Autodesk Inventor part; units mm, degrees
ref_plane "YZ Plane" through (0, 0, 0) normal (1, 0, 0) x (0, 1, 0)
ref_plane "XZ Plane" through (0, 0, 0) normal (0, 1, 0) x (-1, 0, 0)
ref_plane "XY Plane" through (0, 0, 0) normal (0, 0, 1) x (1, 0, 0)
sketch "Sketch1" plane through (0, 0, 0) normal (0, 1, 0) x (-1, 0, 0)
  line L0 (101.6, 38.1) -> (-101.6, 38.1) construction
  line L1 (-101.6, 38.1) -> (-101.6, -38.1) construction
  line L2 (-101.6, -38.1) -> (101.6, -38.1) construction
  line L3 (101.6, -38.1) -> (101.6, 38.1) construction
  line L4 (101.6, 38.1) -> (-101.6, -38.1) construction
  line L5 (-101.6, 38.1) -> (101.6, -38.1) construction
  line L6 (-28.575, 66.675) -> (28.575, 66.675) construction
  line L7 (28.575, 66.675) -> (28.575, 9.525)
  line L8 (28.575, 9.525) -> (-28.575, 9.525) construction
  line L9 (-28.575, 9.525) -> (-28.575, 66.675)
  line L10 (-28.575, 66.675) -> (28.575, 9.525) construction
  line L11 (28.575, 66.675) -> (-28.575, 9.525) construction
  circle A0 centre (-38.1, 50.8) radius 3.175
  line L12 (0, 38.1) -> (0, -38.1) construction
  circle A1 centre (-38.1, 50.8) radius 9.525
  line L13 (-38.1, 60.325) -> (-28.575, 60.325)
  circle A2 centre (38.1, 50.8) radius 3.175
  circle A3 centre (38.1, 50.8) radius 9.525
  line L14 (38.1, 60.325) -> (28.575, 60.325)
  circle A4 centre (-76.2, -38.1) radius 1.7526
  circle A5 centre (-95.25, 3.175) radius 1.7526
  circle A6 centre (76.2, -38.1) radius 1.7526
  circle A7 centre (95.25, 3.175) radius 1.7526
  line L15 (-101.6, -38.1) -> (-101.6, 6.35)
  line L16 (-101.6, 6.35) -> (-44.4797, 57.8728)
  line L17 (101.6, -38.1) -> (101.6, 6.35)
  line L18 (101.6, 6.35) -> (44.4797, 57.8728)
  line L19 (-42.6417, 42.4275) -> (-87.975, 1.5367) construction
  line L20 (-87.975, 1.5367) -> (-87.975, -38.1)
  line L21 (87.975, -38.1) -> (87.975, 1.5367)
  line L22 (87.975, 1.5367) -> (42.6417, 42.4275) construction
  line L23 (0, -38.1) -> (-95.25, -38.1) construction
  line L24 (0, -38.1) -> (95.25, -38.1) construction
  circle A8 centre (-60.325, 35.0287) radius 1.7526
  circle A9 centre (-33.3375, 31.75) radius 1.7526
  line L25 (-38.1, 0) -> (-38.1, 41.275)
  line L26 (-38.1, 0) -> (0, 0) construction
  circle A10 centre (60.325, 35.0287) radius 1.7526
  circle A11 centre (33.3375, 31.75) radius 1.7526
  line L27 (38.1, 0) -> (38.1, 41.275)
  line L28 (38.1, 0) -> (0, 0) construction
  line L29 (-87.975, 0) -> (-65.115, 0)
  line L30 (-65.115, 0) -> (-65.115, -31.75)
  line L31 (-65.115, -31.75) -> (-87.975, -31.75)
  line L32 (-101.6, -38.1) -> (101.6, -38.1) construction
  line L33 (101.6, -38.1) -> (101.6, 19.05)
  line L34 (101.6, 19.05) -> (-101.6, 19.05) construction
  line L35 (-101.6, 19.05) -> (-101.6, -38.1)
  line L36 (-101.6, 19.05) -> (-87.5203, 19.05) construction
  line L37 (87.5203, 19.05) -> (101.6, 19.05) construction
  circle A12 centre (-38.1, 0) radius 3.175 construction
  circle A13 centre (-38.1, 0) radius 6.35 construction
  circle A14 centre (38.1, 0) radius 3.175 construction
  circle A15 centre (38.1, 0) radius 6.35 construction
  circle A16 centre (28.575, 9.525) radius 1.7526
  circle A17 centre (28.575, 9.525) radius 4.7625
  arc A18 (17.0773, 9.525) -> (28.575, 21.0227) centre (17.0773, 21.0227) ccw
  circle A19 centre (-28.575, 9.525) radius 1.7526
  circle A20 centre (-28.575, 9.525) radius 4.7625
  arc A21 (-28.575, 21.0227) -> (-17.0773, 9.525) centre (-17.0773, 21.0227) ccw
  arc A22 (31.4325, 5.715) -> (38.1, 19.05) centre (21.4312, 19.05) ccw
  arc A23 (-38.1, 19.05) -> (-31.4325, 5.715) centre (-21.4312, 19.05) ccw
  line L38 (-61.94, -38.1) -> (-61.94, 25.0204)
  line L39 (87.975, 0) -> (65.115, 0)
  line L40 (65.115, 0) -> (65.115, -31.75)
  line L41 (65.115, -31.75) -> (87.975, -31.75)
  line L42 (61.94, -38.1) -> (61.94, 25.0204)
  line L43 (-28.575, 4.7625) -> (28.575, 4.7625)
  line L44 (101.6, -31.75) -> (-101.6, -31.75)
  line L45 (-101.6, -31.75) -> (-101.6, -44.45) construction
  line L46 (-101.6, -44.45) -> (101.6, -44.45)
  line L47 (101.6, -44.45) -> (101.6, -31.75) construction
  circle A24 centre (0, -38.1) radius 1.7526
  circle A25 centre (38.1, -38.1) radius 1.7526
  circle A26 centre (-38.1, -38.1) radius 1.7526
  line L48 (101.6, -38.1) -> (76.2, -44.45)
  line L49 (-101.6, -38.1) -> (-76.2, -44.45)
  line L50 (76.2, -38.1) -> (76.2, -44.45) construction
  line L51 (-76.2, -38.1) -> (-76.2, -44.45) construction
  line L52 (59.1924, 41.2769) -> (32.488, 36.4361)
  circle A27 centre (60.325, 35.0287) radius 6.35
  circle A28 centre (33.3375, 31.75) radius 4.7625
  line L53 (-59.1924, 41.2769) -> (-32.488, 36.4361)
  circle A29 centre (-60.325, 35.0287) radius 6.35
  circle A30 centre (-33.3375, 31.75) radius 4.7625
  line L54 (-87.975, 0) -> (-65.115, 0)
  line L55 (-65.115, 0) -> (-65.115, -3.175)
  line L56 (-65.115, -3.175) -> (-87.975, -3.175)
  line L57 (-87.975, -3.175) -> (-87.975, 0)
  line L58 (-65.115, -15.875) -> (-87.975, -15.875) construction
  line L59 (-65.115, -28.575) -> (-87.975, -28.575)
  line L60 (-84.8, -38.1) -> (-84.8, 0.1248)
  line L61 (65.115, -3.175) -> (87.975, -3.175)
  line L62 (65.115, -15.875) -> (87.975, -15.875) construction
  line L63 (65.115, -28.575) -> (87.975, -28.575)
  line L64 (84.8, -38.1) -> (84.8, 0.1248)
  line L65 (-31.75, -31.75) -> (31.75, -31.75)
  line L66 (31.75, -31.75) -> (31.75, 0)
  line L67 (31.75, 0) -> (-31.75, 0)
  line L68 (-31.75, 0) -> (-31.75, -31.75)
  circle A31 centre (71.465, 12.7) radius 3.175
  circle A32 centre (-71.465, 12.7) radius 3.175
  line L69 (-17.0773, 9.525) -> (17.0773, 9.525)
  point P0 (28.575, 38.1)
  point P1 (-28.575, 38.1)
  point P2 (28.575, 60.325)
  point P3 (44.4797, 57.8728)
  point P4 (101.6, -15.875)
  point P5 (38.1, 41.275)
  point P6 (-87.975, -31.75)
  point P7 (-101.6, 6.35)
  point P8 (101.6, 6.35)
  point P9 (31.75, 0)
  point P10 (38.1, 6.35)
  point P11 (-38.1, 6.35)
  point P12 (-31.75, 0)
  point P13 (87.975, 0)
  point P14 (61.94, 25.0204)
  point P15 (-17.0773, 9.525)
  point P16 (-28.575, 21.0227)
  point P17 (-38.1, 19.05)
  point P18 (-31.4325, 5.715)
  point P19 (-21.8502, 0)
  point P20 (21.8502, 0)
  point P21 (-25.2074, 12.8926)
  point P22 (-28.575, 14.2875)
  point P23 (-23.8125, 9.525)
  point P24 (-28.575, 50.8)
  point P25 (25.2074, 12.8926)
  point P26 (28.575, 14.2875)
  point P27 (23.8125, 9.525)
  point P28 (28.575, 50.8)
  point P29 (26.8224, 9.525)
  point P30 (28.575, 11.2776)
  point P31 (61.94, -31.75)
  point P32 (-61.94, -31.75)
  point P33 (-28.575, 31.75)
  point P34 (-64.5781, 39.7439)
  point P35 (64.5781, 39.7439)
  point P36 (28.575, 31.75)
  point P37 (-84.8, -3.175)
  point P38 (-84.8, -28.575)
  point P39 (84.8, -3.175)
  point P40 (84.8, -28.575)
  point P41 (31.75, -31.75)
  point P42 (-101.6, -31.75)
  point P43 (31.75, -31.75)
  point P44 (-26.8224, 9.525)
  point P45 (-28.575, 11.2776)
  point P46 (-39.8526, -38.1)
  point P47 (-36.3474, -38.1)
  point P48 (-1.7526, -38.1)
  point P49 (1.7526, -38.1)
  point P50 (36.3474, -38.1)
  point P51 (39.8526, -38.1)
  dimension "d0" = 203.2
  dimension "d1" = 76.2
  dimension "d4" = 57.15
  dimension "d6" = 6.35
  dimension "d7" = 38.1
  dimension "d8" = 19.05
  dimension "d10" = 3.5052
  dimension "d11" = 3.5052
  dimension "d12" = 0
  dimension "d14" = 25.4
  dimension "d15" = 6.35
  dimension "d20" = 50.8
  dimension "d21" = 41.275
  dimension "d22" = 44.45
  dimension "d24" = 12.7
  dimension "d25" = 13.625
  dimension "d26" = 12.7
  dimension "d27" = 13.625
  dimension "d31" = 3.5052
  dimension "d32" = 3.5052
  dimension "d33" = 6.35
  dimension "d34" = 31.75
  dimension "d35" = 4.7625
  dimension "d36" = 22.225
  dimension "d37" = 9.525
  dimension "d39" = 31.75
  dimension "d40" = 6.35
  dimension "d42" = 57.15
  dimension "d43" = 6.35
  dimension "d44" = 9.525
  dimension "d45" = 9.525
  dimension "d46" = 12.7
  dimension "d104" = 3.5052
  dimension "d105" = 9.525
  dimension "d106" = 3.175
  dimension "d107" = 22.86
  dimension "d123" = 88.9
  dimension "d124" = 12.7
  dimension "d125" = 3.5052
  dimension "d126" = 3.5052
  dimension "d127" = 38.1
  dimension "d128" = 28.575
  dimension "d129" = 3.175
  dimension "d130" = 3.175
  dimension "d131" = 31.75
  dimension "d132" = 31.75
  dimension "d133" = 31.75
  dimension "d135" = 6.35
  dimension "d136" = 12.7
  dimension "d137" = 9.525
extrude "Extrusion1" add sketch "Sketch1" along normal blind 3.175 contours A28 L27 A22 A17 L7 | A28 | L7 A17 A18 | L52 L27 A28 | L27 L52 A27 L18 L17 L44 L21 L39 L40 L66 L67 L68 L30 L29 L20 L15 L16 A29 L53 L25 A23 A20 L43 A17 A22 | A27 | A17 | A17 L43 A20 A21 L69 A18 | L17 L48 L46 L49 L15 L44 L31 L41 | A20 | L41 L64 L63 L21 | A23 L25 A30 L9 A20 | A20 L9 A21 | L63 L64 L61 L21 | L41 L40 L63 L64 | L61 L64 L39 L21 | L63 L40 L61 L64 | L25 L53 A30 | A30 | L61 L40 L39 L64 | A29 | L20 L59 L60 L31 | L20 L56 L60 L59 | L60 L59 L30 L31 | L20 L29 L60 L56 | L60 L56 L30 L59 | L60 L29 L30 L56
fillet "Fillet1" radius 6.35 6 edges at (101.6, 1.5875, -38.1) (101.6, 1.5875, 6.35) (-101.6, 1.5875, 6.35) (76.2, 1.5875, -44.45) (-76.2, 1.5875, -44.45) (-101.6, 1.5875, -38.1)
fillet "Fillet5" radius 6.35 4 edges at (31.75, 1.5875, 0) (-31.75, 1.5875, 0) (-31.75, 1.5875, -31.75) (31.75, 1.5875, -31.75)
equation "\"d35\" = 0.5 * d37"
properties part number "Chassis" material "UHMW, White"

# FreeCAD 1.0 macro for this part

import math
import FreeCAD as App
import Part
import Sketcher
from FreeCAD import Vector
Q = App.Units.Quantity


def edges_at(feature, points):
    """Names of the edges that pass closest to the given points."""
    edges = feature.Shape.Edges
    near = lambda p: min(range(len(edges)), key=lambda i: edges[i].distToShape(Part.Vertex(*p))[0])
    return sorted({f"Edge{near(p) + 1}" for p in points})


def add_polygon(sketch, points):
    """Adds a closed chain of lines whose ends are joined by coincident constraints."""
    first, n = sketch.GeometryCount, len(points)
    for a, b in zip(points, points[1:] + points[:1]):
        sketch.addGeometry(Part.LineSegment(App.Vector(*a, 0), App.Vector(*b, 0)), False)
    for i in range(n):
        sketch.addConstraint(Sketcher.Constraint("Coincident", first + i, 2, first + (i + 1) % n, 1))

doc = App.newDocument("Part")
body = doc.addObject("PartDesign::Body", "Body")

# Sketch on XZ plane
sketch1 = doc.addObject("Sketcher::SketchObject", "Sketch")
body.addObject(sketch1)
sketch1.AttachmentSupport = (doc.XZ_Plane, [""])
sketch1.MapMode = "FlatFace"
sketch1.addGeometry(Part.LineSegment(Vector(-28.6, 31.8, 0), Vector(-28.6, 21, 0)), False)  # 0
sketch1.addGeometry(Part.ArcOfCircle(Part.Circle(Vector(-17.1, 21, 0), Vector(0, 0, 1), 11.5), math.radians(180), math.radians(270)), False)  # 1
sketch1.addGeometry(Part.LineSegment(Vector(-17.1, 9.5, 0), Vector(17.1, 9.5, 0)), False)  # 2
sketch1.addGeometry(Part.ArcOfCircle(Part.Circle(Vector(17.1, 21, 0), Vector(0, 0, 1), 11.5), math.radians(-90), math.radians(0)), False)  # 3
sketch1.addGeometry(Part.LineSegment(Vector(28.6, 21, 0), Vector(28.6, 31.8, 0)), False)  # 4
sketch1.addGeometry(Part.ArcOfCircle(Part.Circle(Vector(33.3, 31.8, 0), Vector(0, 0, 1), 4.8), math.radians(100), math.radians(180)), False)  # 5
sketch1.addGeometry(Part.LineSegment(Vector(32.5, 36.4, 0), Vector(59.2, 41.3, 0)), False)  # 6
sketch1.addGeometry(Part.ArcOfCircle(Part.Circle(Vector(60.3, 35, 0), Vector(0, 0, 1), 6.3), math.radians(48), math.radians(100)), False)  # 7
sketch1.addGeometry(Part.LineSegment(Vector(64.6, 39.7, 0), Vector(101.6, 6.3, 0)), False)  # 8
sketch1.addGeometry(Part.LineSegment(Vector(101.6, 6.3, 0), Vector(101.6, -38.1, 0)), False)  # 9
sketch1.addGeometry(Part.LineSegment(Vector(101.6, -38.1, 0), Vector(76.2, -44.5, 0)), False)  # 10
sketch1.addGeometry(Part.LineSegment(Vector(76.2, -44.5, 0), Vector(-76.2, -44.5, 0)), False)  # 11
sketch1.addGeometry(Part.LineSegment(Vector(-76.2, -44.5, 0), Vector(-101.6, -38.1, 0)), False)  # 12
sketch1.addGeometry(Part.LineSegment(Vector(-101.6, -38.1, 0), Vector(-101.6, 6.3, 0)), False)  # 13
sketch1.addGeometry(Part.LineSegment(Vector(-101.6, 6.3, 0), Vector(-64.6, 39.7, 0)), False)  # 14
sketch1.addGeometry(Part.ArcOfCircle(Part.Circle(Vector(-60.3, 35, 0), Vector(0, 0, 1), 6.3), math.radians(80), math.radians(132)), False)  # 15
sketch1.addGeometry(Part.LineSegment(Vector(-59.2, 41.3, 0), Vector(-32.5, 36.4, 0)), False)  # 16
sketch1.addGeometry(Part.ArcOfCircle(Part.Circle(Vector(-33.3, 31.8, 0), Vector(0, 0, 1), 4.8), math.radians(0), math.radians(80)), False)  # 17
sketch1.addGeometry(Part.Circle(Vector(-33.3, 31.8, 0), Vector(0, 0, 1), 1.8), False)  # 18
add_polygon(sketch1, [(-31.8, 0), (-31.8, -31.8), (31.8, -31.8), (31.8, 0)])  # lines 19-22
sketch1.addGeometry(Part.Circle(Vector(71.5, 12.7, 0), Vector(0, 0, 1), 3.2), False)  # 23
sketch1.addGeometry(Part.Circle(Vector(-71.5, 12.7, 0), Vector(0, 0, 1), 3.2), False)  # 24
sketch1.addGeometry(Part.Circle(Vector(95.2, 3.2, 0), Vector(0, 0, 1), 1.8), False)  # 25
sketch1.addGeometry(Part.Circle(Vector(-95.2, 3.2, 0), Vector(0, 0, 1), 1.8), False)  # 26
sketch1.addGeometry(Part.Circle(Vector(-28.6, 9.5, 0), Vector(0, 0, 1), 1.8), False)  # 27
sketch1.addGeometry(Part.Circle(Vector(-60.3, 35, 0), Vector(0, 0, 1), 1.8), False)  # 28
sketch1.addGeometry(Part.Circle(Vector(-76.2, -38.1, 0), Vector(0, 0, 1), 1.8), False)  # 29
sketch1.addGeometry(Part.Circle(Vector(76.2, -38.1, 0), Vector(0, 0, 1), 1.8), False)  # 30
sketch1.addGeometry(Part.Circle(Vector(38.1, -38.1, 0), Vector(0, 0, 1), 1.8), False)  # 31
sketch1.addGeometry(Part.Circle(Vector(0, -38.1, 0), Vector(0, 0, 1), 1.8), False)  # 32
sketch1.addGeometry(Part.Circle(Vector(-38.1, -38.1, 0), Vector(0, 0, 1), 1.8), False)  # 33
sketch1.addGeometry(Part.Circle(Vector(60.3, 35, 0), Vector(0, 0, 1), 1.8), False)  # 34
sketch1.addGeometry(Part.Circle(Vector(28.6, 9.5, 0), Vector(0, 0, 1), 1.8), False)  # 35
sketch1.addGeometry(Part.Circle(Vector(33.3, 31.8, 0), Vector(0, 0, 1), 1.8), False)  # 36
sketch1.addConstraint(Sketcher.Constraint("Tangent", 0, 2, 1, 1))
sketch1.addConstraint(Sketcher.Constraint("Tangent", 1, 2, 2, 1))
sketch1.addConstraint(Sketcher.Constraint("Tangent", 2, 2, 3, 1))
sketch1.addConstraint(Sketcher.Constraint("Tangent", 3, 2, 4, 1))
sketch1.addConstraint(Sketcher.Constraint("Tangent", 4, 2, 5, 2))
sketch1.addConstraint(Sketcher.Constraint("Tangent", 5, 1, 6, 1))
sketch1.addConstraint(Sketcher.Constraint("Tangent", 6, 2, 7, 2))
sketch1.addConstraint(Sketcher.Constraint("Tangent", 7, 1, 8, 1))
sketch1.addConstraint(Sketcher.Constraint("Coincident", 8, 2, 9, 1))
sketch1.addConstraint(Sketcher.Constraint("Coincident", 9, 2, 10, 1))
sketch1.addConstraint(Sketcher.Constraint("Coincident", 10, 2, 11, 1))
sketch1.addConstraint(Sketcher.Constraint("Coincident", 11, 2, 12, 1))
sketch1.addConstraint(Sketcher.Constraint("Coincident", 12, 2, 13, 1))
sketch1.addConstraint(Sketcher.Constraint("Coincident", 13, 2, 14, 1))
sketch1.addConstraint(Sketcher.Constraint("Tangent", 14, 2, 15, 2))
sketch1.addConstraint(Sketcher.Constraint("Tangent", 15, 1, 16, 1))
sketch1.addConstraint(Sketcher.Constraint("Tangent", 16, 2, 17, 2))
sketch1.addConstraint(Sketcher.Constraint("Tangent", 17, 1, 0, 1))
sketch1.addConstraint(Sketcher.Constraint("Vertical", 0))
sketch1.addConstraint(Sketcher.Constraint("Horizontal", 2))
sketch1.addConstraint(Sketcher.Constraint("Vertical", 4))
sketch1.addConstraint(Sketcher.Constraint("Vertical", 9))
sketch1.addConstraint(Sketcher.Constraint("Horizontal", 11))
sketch1.addConstraint(Sketcher.Constraint("Vertical", 13))
sketch1.addConstraint(Sketcher.Constraint("Vertical", 19))
sketch1.addConstraint(Sketcher.Constraint("Horizontal", 20))
sketch1.addConstraint(Sketcher.Constraint("Vertical", 21))
sketch1.addConstraint(Sketcher.Constraint("Horizontal", 22))
sketch1.addConstraint(Sketcher.Constraint("Coincident", 18, 3, 17, 3))
sketch1.addConstraint(Sketcher.Constraint("Coincident", 28, 3, 15, 3))
sketch1.addConstraint(Sketcher.Constraint("Coincident", 34, 3, 7, 3))
sketch1.addConstraint(Sketcher.Constraint("Coincident", 36, 3, 5, 3))
sketch1.addConstraint(Sketcher.Constraint("Equal", 1, 3))
sketch1.addConstraint(Sketcher.Constraint("Equal", 7, 15))
sketch1.addConstraint(Sketcher.Constraint("Equal", 5, 17))
sketch1.addConstraint(Sketcher.Constraint("Equal", 23, 24))
sketch1.addConstraint(Sketcher.Constraint("Equal", 18, 25))
sketch1.addConstraint(Sketcher.Constraint("Equal", 25, 26))
sketch1.addConstraint(Sketcher.Constraint("Equal", 26, 27))
sketch1.addConstraint(Sketcher.Constraint("Equal", 27, 28))
sketch1.addConstraint(Sketcher.Constraint("Equal", 28, 29))
sketch1.addConstraint(Sketcher.Constraint("Equal", 29, 30))
sketch1.addConstraint(Sketcher.Constraint("Equal", 30, 31))
sketch1.addConstraint(Sketcher.Constraint("Equal", 31, 32))
sketch1.addConstraint(Sketcher.Constraint("Equal", 32, 33))
sketch1.addConstraint(Sketcher.Constraint("Equal", 33, 34))
sketch1.addConstraint(Sketcher.Constraint("Equal", 34, 35))
sketch1.addConstraint(Sketcher.Constraint("Equal", 35, 36))
sketch1.addConstraint(Sketcher.Constraint("Symmetric", 21, 2, 22, 2, -1, 1))
sketch1.addConstraint(Sketcher.Constraint("Symmetric", 7, 3, 15, 3, -2))
sketch1.addConstraint(Sketcher.Constraint("Symmetric", 5, 3, 17, 3, -2))
sketch1.addConstraint(Sketcher.Constraint("Symmetric", 23, 3, 24, 3, -2))
sketch1.addConstraint(Sketcher.Constraint("Symmetric", 25, 3, 26, 3, -2))
sketch1.addConstraint(Sketcher.Constraint("Symmetric", 29, 3, 30, 3, -2))
sketch1.addConstraint(Sketcher.Constraint("Symmetric", 31, 3, 33, 3, -2))
sketch1.addConstraint(Sketcher.Constraint("Symmetric", 27, 3, 35, 3, -2))
sketch1.addConstraint(Sketcher.Constraint("Symmetric", 9, 2, 12, 2, -2))
sketch1.addConstraint(Sketcher.Constraint("PointOnObject", 32, 3, -2))
sketch1.addConstraint(Sketcher.Constraint("Horizontal", 30, 3, 31, 3))
sketch1.addConstraint(Sketcher.Constraint("Horizontal", 31, 3, 32, 3))
sketch1.addConstraint(Sketcher.Constraint("Horizontal", 35, 3, 1, 2))
sketch1.addConstraint(Sketcher.Constraint("Horizontal", 33, 3, 9, 2))
sketch1.addConstraint(Sketcher.Constraint("Horizontal", 8, 2, 13, 2))
sketch1.addConstraint(Sketcher.Constraint("Vertical", 27, 3, 0, 2))
sketch1.addConstraint(Sketcher.Constraint("Vertical", 30, 3, 10, 2))
sketch1.addConstraint(Sketcher.Constraint("Vertical", 29, 3, 11, 2))
sketch1.addConstraint(Sketcher.Constraint("Diameter", 23, Q("0.25 in")))
sketch1.addConstraint(Sketcher.Constraint("Radius", 7, Q("0.25 in")))
sketch1.addConstraint(Sketcher.Constraint("Diameter", 18, Q("0.138 in")))
sketch1.addConstraint(Sketcher.Constraint("DistanceX", 29, 3, -1, 1, Q("3 in")))
sketch1.addConstraint(Sketcher.Constraint("Radius", 5, Q("0.1875 in")))
sketch1.addConstraint(Sketcher.Constraint("DistanceY", 29, 3, 24, 3, Q("2 in")))
sketch1.addConstraint(Sketcher.Constraint("DistanceX", 30, 3, 9, 2, Q("1 in")))
sketch1.addConstraint(Sketcher.Constraint("DistanceY", 10, 2, 8, 2, Q("2 in")))
sketch1.addConstraint(Sketcher.Constraint("DistanceY", 9, 2, 9, 1, Q("1.75 in")))
sketch1.addConstraint(Sketcher.Constraint("DistanceY", 19, 2, 19, 1, Q("1.25 in")))
sketch1.addConstraint(Sketcher.Constraint("DistanceY", -1, 1, 23, 3, Q("0.5 in")))
sketch1.addConstraint(Sketcher.Constraint("DistanceX", -1, 1, 31, 3, Q("1.5 in")))
sketch1.addConstraint(Sketcher.Constraint("DistanceY", -1, 1, 5, 3, Q("1.25 in")))
sketch1.addConstraint(Sketcher.Constraint("DistanceX", 19, 2, -1, 1, Q("1.25 in")))
sketch1.addConstraint(Sketcher.Constraint("DistanceX", 15, 3, 27, 3, Q("1.25 in")))
sketch1.addConstraint(Sketcher.Constraint("DistanceX", 26, 3, 29, 3, Q("0.75 in")))
sketch1.addConstraint(Sketcher.Constraint("DistanceY", -1, 1, 25, 3, Q("0.125 in")))
sketch1.addConstraint(Sketcher.Constraint("DistanceX", 27, 3, -1, 1, Q("1.125 in")))
sketch1.addConstraint(Sketcher.Constraint("DistanceY", -1, 1, 27, 3, Q("0.375 in")))
sketch1.addConstraint(Sketcher.Constraint("Angle", 8, Q("-42.0506 deg")))
sketch1.addConstraint(Sketcher.Constraint("Radius", 1, Q("11.4977 mm")))
sketch1.addConstraint(Sketcher.Constraint("DistanceX", -1, 1, 23, 3, Q("71.465 mm")))
pad1 = doc.addObject("PartDesign::Pad", "Pad")
body.addObject(pad1)
pad1.Profile = sketch1
pad1.Length = Q("0.125 in")
pad1.Reversed = True
doc.recompute()

fillet = doc.addObject("PartDesign::Fillet", "Fillet")
body.addObject(fillet)
fillet.Base = (pad1, edges_at(pad1, [
    (101.6, 1.587, -38.1),
    (101.6, 1.587, 6.35),
    (-101.6, 1.587, 6.35),
    (76.2, 1.587, -44.45),
    (-76.2, 1.587, -44.45),
    (-101.6, 1.587, -38.1),
]))
fillet.Radius = Q("0.25 in")
doc.recompute()

fillet2 = doc.addObject("PartDesign::Fillet", "Fillet001")
body.addObject(fillet2)
fillet2.Base = (fillet, edges_at(fillet, [
    (31.75, 1.587, 0),
    (-31.75, 1.587, 0),
    (-31.75, 1.587, -31.75),
    (31.75, 1.587, -31.75),
]))
fillet2.Radius = Q("0.25 in")

doc.recompute()
